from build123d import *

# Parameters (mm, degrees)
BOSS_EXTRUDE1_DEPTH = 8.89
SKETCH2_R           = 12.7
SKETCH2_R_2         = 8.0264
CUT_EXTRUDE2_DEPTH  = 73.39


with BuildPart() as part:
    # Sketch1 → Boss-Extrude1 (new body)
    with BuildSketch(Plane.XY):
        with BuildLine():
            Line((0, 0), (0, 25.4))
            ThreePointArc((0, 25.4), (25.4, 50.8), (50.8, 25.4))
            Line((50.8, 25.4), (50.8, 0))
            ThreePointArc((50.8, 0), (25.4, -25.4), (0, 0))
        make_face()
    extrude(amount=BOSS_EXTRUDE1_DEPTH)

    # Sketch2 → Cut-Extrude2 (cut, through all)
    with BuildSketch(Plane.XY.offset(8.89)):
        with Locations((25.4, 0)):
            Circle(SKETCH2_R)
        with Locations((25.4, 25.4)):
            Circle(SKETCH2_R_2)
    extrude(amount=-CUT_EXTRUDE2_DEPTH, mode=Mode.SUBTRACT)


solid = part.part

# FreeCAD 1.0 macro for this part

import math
import FreeCAD as App
import Part
import Sketcher
Q = App.Units.Quantity

doc = App.newDocument("Part")
body = doc.addObject("PartDesign::Body", "Body")

# Sketch on XY plane
sketch1 = body.newObject("Sketcher::SketchObject", "Sketch")
sketch1.AttachmentSupport = (doc.getObject("XY_Plane"), [""])
sketch1.MapMode = "FlatFace"
sketch1.addGeometry(Part.LineSegment(App.Vector(0, 25, 0), App.Vector(0, 0, 0)), False)
sketch1.addGeometry(Part.ArcOfCircle(Part.Circle(App.Vector(25, 0, 0), App.Vector(0, 0, 1), 25), math.radians(180), math.radians(360)), False)
sketch1.addGeometry(Part.LineSegment(App.Vector(51, 0, 0), App.Vector(51, 25, 0)), False)
sketch1.addGeometry(Part.ArcOfCircle(Part.Circle(App.Vector(25, 25, 0), App.Vector(0, 0, 1), 25), math.radians(0), math.radians(180)), False)
sketch1.addConstraint(Sketcher.Constraint("Tangent", 0, 2, 1, 1))
sketch1.addConstraint(Sketcher.Constraint("Tangent", 1, 2, 2, 1))
sketch1.addConstraint(Sketcher.Constraint("Tangent", 2, 2, 3, 1))
sketch1.addConstraint(Sketcher.Constraint("Tangent", 3, 2, 0, 1))
sketch1.addConstraint(Sketcher.Constraint("Vertical", 0))
sketch1.addConstraint(Sketcher.Constraint("Vertical", 2))
sketch1.addConstraint(Sketcher.Constraint("Coincident", 0, 2, -1, 1))
sketch1.addConstraint(Sketcher.Constraint("Radius", 1, Q("1 in")))
sketch1.addConstraint(Sketcher.Constraint("DistanceY", 0, 2, 0, 1, Q("1 in")))
pad1 = body.newObject("PartDesign::Pad", "Pad")
pad1.Profile = sketch1
pad1.Length = Q("0.35 in")

# Sketch on XY plane
sketch2 = body.newObject("Sketcher::SketchObject", "Sketch001")
sketch2.AttachmentSupport = (doc.getObject("XY_Plane"), [""])
sketch2.MapMode = "FlatFace"
sketch2.AttachmentOffset = App.Placement(App.Vector(0, 0, 0.35 * 25.4), App.Rotation())
sketch2.addGeometry(Part.Circle(App.Vector(25, 0, 0), App.Vector(0, 0, 1), 13), False)
sketch2.addGeometry(Part.Circle(App.Vector(25, 25, 0), App.Vector(0, 0, 1), 8), False)
sketch2.addConstraint(Sketcher.Constraint("PointOnObject", 0, 3, -1))
sketch2.addConstraint(Sketcher.Constraint("Vertical", 0, 3, 1, 3))
sketch2.addConstraint(Sketcher.Constraint("Diameter", 0, Q("1 in")))
sketch2.addConstraint(Sketcher.Constraint("Diameter", 1, Q("0.632 in")))
sketch2.addConstraint(Sketcher.Constraint("DistanceX", -1, 1, 0, 3, Q("1 in")))
sketch2.addConstraint(Sketcher.Constraint("DistanceY", -1, 1, 1, 3, Q("1 in")))
pocket1 = body.newObject("PartDesign::Pocket", "Pocket")
pocket1.Profile = sketch2
pocket1.Type = "ThroughAll"

doc.recompute()
